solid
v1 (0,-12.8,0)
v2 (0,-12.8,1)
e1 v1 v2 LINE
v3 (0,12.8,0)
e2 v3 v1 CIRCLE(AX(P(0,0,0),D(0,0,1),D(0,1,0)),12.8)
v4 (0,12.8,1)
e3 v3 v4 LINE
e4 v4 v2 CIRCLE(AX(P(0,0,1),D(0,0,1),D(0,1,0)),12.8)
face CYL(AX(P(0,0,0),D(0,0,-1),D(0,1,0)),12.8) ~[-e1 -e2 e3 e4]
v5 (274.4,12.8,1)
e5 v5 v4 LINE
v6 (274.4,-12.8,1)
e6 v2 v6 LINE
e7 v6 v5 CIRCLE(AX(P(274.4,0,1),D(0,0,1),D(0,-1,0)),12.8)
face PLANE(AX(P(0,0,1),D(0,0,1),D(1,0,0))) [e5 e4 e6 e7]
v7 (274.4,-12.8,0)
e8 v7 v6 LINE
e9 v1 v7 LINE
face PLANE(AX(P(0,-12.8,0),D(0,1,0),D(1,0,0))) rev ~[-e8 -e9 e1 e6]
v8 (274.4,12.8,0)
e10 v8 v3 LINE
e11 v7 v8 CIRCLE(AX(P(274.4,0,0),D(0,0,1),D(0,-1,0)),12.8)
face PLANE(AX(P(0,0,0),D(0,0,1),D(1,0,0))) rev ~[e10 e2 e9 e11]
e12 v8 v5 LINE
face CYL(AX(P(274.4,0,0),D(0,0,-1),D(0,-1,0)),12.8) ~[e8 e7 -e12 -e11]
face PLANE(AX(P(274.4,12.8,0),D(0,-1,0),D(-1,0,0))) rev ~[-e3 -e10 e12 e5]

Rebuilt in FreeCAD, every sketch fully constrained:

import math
import FreeCAD as App
import Part
import Sketcher
Q = App.Units.Quantity

doc = App.newDocument("Part")
body = doc.addObject("PartDesign::Body", "Body")

# Sketch on XY plane
sketch1 = doc.addObject("Sketcher::SketchObject", "Sketch")
body.addObject(sketch1)
sketch1.AttachmentSupport = (doc.XY_Plane, [""])
sketch1.MapMode = "FlatFace"
sketch1.addGeometry(Part.ArcOfCircle(Part.Circle(App.Vector(0, 0, 0), App.Vector(0, 0, 1), 12.8), math.radians(90), math.radians(270)), False)
sketch1.addGeometry(Part.LineSegment(App.Vector(0, -12.8, 0), App.Vector(274.4, -12.8, 0)), False)
sketch1.addGeometry(Part.ArcOfCircle(Part.Circle(App.Vector(274.4, 0, 0), App.Vector(0, 0, 1), 12.8), math.radians(-90), math.radians(90)), False)
sketch1.addGeometry(Part.LineSegment(App.Vector(274.4, 12.8, 0), App.Vector(0, 12.8, 0)), False)
sketch1.addConstraint(Sketcher.Constraint("Tangent", 0, 2, 1, 1))
sketch1.addConstraint(Sketcher.Constraint("Tangent", 1, 2, 2, 1))
sketch1.addConstraint(Sketcher.Constraint("Tangent", 2, 2, 3, 1))
sketch1.addConstraint(Sketcher.Constraint("Tangent", 3, 2, 0, 1))
sketch1.addConstraint(Sketcher.Constraint("Horizontal", 1))
sketch1.addConstraint(Sketcher.Constraint("Horizontal", 3))
sketch1.addConstraint(Sketcher.Constraint("Coincident", 0, 3, -1, 1))
sketch1.addConstraint(Sketcher.Constraint("Radius", 0, Q("12.8 mm")))
sketch1.addConstraint(Sketcher.Constraint("DistanceX", 1, 1, 1, 2, Q("274.4 mm")))
pad1 = doc.addObject("PartDesign::Pad", "Pad")
body.addObject(pad1)
pad1.Profile = sketch1
pad1.Length = 1

doc.recompute()
